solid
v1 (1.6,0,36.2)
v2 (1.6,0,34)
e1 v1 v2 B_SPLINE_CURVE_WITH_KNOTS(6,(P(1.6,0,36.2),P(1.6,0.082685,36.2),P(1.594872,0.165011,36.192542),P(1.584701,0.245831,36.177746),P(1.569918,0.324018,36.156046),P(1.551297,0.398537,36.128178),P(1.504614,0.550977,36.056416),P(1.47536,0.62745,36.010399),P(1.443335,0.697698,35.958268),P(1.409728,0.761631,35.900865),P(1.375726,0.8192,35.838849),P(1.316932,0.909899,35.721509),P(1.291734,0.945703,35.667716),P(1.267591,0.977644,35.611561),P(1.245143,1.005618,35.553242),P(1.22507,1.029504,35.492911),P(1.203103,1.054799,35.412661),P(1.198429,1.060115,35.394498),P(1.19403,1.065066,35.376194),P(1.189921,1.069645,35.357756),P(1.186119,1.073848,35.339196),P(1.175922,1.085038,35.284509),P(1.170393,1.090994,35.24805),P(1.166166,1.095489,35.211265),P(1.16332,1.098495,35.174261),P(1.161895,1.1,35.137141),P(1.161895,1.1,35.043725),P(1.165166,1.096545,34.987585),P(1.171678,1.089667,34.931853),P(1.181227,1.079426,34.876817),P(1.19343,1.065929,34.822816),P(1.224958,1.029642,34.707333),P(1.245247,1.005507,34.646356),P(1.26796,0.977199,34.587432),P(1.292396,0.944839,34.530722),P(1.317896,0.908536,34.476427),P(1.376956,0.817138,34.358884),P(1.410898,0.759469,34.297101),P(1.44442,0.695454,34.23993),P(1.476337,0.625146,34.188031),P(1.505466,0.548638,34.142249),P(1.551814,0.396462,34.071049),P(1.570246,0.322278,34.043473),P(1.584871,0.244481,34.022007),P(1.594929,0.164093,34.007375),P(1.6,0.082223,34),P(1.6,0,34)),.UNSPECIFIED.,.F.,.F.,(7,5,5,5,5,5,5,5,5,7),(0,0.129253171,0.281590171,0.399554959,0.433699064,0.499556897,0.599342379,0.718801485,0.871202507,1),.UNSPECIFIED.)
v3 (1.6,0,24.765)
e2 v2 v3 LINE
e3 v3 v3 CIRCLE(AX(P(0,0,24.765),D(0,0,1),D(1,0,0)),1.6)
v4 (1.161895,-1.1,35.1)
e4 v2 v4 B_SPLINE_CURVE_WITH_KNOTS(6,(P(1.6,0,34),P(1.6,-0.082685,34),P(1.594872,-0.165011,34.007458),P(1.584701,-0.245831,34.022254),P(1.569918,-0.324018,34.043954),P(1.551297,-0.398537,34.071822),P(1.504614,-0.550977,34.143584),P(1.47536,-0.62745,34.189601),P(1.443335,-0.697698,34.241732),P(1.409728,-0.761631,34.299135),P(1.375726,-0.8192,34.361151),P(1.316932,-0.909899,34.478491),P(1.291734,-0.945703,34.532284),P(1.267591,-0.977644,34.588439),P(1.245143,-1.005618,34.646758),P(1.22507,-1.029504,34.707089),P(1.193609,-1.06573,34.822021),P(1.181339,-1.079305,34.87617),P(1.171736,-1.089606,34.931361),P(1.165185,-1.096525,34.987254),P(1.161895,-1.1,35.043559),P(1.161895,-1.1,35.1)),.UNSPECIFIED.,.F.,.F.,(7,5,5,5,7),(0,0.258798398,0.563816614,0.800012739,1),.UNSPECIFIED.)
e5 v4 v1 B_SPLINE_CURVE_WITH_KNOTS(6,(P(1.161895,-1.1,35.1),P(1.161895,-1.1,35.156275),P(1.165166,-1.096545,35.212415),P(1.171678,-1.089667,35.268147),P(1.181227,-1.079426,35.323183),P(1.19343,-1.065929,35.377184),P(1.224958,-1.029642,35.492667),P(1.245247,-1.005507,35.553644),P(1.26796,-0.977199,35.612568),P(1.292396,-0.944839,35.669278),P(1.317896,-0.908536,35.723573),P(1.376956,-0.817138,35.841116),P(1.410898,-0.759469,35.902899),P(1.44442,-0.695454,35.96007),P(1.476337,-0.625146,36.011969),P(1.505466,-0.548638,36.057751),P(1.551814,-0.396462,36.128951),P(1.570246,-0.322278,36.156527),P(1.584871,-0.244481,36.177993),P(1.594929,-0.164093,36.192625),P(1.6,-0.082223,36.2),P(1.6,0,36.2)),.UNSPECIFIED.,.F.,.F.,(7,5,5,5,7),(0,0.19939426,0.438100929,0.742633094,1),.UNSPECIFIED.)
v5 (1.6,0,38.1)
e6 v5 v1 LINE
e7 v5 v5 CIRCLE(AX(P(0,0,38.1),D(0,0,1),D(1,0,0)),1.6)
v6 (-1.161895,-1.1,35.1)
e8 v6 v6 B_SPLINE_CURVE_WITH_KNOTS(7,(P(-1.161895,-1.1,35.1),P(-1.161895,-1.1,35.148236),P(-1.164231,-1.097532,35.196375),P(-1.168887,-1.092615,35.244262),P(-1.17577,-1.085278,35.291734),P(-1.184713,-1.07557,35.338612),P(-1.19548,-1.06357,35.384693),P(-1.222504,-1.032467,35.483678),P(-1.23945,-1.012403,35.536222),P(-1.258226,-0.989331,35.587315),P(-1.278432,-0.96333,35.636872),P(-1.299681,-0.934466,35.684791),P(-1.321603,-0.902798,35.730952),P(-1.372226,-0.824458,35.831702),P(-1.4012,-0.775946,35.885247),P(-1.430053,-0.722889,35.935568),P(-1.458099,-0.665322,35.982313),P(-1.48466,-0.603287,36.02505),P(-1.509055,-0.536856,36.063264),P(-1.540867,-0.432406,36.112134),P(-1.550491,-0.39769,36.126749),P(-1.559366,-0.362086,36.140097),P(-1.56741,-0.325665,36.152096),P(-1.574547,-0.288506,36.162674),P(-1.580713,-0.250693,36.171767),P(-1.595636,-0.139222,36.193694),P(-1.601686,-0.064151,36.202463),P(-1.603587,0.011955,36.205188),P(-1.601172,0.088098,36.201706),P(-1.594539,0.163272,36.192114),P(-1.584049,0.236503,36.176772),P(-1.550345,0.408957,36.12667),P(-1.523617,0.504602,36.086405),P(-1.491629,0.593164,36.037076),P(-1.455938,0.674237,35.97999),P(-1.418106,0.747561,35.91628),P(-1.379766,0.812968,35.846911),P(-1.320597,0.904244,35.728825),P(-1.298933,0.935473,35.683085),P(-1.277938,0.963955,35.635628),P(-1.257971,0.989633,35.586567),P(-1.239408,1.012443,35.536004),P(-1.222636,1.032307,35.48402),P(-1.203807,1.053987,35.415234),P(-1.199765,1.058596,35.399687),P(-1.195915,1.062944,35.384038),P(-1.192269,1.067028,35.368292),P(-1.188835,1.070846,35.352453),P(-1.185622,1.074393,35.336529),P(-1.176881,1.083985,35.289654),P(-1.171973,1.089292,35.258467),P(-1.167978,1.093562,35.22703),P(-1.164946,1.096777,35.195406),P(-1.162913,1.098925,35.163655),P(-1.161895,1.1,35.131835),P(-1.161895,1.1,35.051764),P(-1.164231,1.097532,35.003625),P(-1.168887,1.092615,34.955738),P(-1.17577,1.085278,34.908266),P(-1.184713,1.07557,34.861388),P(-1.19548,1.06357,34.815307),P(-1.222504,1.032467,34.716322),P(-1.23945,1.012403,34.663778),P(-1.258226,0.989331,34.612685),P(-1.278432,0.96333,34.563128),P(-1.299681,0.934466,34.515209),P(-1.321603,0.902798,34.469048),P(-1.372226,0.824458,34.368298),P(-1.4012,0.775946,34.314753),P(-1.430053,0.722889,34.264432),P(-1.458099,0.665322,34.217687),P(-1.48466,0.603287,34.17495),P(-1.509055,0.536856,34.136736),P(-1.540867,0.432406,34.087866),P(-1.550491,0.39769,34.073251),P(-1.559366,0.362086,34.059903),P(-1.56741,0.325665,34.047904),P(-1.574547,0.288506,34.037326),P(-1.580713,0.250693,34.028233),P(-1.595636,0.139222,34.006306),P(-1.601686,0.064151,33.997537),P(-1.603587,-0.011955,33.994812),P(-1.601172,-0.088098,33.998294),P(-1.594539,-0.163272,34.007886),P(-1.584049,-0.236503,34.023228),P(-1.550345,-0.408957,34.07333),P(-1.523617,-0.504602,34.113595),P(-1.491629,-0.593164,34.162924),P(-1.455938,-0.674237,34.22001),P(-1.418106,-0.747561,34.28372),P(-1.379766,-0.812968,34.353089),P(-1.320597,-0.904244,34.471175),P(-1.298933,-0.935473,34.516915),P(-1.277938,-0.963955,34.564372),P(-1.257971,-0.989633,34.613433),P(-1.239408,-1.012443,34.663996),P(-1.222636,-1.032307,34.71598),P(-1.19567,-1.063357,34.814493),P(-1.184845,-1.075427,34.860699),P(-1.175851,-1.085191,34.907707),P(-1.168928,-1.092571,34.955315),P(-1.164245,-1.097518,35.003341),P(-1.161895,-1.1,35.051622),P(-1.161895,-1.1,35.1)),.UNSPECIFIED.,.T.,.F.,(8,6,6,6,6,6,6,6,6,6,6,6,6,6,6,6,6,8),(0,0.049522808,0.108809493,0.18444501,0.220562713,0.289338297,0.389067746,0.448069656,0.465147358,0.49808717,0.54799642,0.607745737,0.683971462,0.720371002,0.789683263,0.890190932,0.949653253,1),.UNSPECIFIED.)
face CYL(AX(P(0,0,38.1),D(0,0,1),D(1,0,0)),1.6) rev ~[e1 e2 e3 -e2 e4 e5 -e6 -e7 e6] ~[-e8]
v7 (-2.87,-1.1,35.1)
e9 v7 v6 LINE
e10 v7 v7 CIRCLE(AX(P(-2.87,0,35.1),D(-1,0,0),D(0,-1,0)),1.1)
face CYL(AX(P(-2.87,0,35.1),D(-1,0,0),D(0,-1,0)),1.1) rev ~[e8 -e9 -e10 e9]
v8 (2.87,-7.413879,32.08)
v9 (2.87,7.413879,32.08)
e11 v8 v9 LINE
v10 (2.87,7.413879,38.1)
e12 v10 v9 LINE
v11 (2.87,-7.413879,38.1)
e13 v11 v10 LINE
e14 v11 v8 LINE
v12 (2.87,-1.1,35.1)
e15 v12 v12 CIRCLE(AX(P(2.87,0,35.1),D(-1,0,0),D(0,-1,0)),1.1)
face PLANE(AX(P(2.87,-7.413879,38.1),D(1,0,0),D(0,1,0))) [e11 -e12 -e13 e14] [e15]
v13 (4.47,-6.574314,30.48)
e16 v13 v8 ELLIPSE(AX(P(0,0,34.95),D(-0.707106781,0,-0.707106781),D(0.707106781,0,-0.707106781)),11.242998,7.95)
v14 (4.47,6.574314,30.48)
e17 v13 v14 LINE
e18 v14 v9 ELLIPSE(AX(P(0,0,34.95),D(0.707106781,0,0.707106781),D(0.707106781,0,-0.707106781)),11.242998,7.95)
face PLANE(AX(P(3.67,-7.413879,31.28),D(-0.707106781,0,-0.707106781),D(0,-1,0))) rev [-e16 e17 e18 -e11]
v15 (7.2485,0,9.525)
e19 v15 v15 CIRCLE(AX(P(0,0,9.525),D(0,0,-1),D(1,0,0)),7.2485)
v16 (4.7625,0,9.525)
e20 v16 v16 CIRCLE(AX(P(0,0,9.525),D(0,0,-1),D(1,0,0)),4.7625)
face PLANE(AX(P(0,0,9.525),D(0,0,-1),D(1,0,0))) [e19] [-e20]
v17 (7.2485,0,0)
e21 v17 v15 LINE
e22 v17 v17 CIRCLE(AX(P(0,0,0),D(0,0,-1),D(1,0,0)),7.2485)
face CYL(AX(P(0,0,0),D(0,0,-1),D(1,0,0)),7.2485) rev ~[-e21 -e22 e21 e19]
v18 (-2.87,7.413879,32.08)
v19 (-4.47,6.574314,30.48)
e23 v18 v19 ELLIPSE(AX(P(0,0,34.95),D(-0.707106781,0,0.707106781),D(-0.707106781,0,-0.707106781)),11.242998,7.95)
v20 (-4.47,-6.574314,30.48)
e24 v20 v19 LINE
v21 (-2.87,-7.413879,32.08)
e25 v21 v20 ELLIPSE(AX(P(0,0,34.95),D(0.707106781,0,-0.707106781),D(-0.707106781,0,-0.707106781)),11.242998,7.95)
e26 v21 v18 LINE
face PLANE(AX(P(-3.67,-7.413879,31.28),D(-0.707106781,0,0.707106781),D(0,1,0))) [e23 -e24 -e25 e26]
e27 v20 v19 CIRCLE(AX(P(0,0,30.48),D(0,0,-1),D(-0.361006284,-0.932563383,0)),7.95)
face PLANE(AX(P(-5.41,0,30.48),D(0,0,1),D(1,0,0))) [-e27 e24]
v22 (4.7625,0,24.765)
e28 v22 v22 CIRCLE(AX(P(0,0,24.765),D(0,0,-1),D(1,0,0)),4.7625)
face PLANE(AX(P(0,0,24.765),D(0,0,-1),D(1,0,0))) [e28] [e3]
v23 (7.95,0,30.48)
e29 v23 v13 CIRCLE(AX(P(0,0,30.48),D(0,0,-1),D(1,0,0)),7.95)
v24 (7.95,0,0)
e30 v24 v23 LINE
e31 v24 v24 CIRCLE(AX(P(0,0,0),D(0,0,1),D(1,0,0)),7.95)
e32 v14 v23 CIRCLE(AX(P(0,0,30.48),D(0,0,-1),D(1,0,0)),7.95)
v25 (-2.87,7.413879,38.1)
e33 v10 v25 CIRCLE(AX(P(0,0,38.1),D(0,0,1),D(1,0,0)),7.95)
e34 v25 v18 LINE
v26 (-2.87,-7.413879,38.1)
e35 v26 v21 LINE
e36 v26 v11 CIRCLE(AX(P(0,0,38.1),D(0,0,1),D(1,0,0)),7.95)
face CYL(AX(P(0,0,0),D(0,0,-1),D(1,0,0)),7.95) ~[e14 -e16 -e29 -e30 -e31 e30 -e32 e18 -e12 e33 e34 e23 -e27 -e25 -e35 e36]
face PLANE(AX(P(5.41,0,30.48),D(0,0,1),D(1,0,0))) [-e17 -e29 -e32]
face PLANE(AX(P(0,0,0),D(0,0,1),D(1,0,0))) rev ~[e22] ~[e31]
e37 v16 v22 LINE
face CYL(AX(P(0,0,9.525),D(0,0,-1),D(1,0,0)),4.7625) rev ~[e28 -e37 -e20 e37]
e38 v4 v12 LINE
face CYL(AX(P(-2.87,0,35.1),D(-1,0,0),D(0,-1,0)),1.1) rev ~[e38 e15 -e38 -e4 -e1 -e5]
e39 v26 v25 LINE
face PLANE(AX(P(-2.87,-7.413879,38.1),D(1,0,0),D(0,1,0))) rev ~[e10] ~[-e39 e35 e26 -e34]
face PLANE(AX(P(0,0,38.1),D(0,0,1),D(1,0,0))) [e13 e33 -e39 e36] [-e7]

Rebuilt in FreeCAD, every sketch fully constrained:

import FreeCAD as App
import Part
import Sketcher
from FreeCAD import Vector
Q = App.Units.Quantity


def edges_at(feature, points):
    """Names of the edges that pass closest to the given points."""
    edges = feature.Shape.Edges
    near = lambda p: min(range(len(edges)), key=lambda i: edges[i].distToShape(Part.Vertex(*p))[0])
    return sorted({f"Edge{near(p) + 1}" for p in points})


def add_polygon(sketch, points):
    """Adds a closed chain of lines whose ends are joined by coincident constraints."""
    first, n = sketch.GeometryCount, len(points)
    for a, b in zip(points, points[1:] + points[:1]):
        sketch.addGeometry(Part.LineSegment(App.Vector(*a, 0), App.Vector(*b, 0)), False)
    for i in range(n):
        sketch.addConstraint(Sketcher.Constraint("Coincident", first + i, 2, first + (i + 1) % n, 1))

doc = App.newDocument("Part")
body = doc.addObject("PartDesign::Body", "Body")

sketch1 = doc.addObject("Sketcher::SketchObject", "Sketch")
body.addObject(sketch1)
sketch1.AttachmentSupport = (doc.XY_Plane, [""])
sketch1.MapMode = "FlatFace"
sketch1.addGeometry(Part.Circle(Vector(0, 0, 0), Vector(0, 0, 1), 8), False)
sketch1.addConstraint([
    Sketcher.Constraint("Coincident", 0, 3, -1, 1),
    Sketcher.Constraint("Diameter", 0, 15.9),
])
pad1 = doc.addObject("PartDesign::Pad", "Pad")
body.addObject(pad1)
pad1.Profile = sketch1
pad1.Length = Q("1.5 in")

sketch2 = doc.addObject("Sketcher::SketchObject", "Sketch001")
body.addObject(sketch2)
sketch2.AttachmentSupport = (doc.XY_Plane, [""])
sketch2.MapMode = "FlatFace"
sketch2.addGeometry(Part.Circle(Vector(0, 0, 0), Vector(0, 0, 1), 7), False)
sketch2.addConstraint([
    Sketcher.Constraint("Coincident", 0, 3, -1, 1),
    Sketcher.Constraint("Diameter", 0, 14.497),
])
pocket1 = doc.addObject("PartDesign::Pocket", "Pocket")
body.addObject(pocket1)
pocket1.Profile = sketch2
pocket1.Length = Q("0.375 in")
pocket1.Reversed = True

sketch3 = doc.addObject("Sketcher::SketchObject", "Sketch002")
body.addObject(sketch3)
sketch3.AttachmentSupport = (doc.XY_Plane, [""])
sketch3.MapMode = "FlatFace"
sketch3.AttachmentOffset = App.Placement(Vector(0, 0, 0.375 * 25.4), App.Rotation())
sketch3.addGeometry(Part.Circle(Vector(0, 0, 0), Vector(0, 0, 1), 4.8), False)
sketch3.addConstraint([
    Sketcher.Constraint("Coincident", 0, 3, -1, 1),
    Sketcher.Constraint("Diameter", 0, Q("0.375 in")),
])
pocket2 = doc.addObject("PartDesign::Pocket", "Pocket001")
body.addObject(pocket2)
pocket2.Profile = sketch3
pocket2.Length = Q("0.6 in")
pocket2.Reversed = True

sketch4 = doc.addObject("Sketcher::SketchObject", "Sketch003")
body.addObject(sketch4)
sketch4.AttachmentSupport = (doc.XY_Plane, [""])
sketch4.MapMode = "FlatFace"
sketch4.AttachmentOffset = App.Placement(Vector(0, 0, 1.5 * 25.4), App.Rotation())
sketch4.addGeometry(Part.Circle(Vector(0, 0, 0), Vector(0, 0, 1), 1.6), False)
sketch4.addConstraint([
    Sketcher.Constraint("Coincident", 0, 3, -1, 1),
    Sketcher.Constraint("Diameter", 0, 3.2),
])
pocket3 = doc.addObject("PartDesign::Pocket", "Pocket002")
body.addObject(pocket3)
pocket3.Profile = sketch4
pocket3.Length = Q("1 in")

sketch5 = doc.addObject("Sketcher::SketchObject", "Sketch004")
body.addObject(sketch5)
sketch5.AttachmentSupport = (doc.XY_Plane, [""])
sketch5.MapMode = "FlatFace"
sketch5.AttachmentOffset = App.Placement(Vector(0, 0, 1.5 * 25.4), App.Rotation())
add_polygon(sketch5, [(-8, 7), (-8, -7), (-3, -7), (-3, 7)])
add_polygon(sketch5, [(3, 7), (3, -7), (8, -7), (8, 7)])
sketch5.addConstraint([
    Sketcher.Constraint("Vertical", 0),
    Sketcher.Constraint("Horizontal", 1),
    Sketcher.Constraint("Vertical", 2),
    Sketcher.Constraint("Horizontal", 3),
    Sketcher.Constraint("Vertical", 4),
    Sketcher.Constraint("Horizontal", 5),
    Sketcher.Constraint("Vertical", 6),
    Sketcher.Constraint("Horizontal", 7),
    Sketcher.Constraint("Symmetric", 2, 2, 4, 2, -1, 1),
    Sketcher.Constraint("Symmetric", 0, 2, 6, 2, -1, 1),
    Sketcher.Constraint("Horizontal", 1, 2, 4, 2),
    Sketcher.Constraint("DistanceX", 1, 1, 1, 2, Q("0.2 in")),
    Sketcher.Constraint("DistanceX", 0, 2, -1, 1, 7.95),
    Sketcher.Constraint("DistanceY", 0, 2, 0, 1, 14.827758),
])
pocket4 = doc.addObject("PartDesign::Pocket", "Pocket003")
body.addObject(pocket4)
pocket4.Profile = sketch5
pocket4.Length = Q("0.3 in")

sketch6 = doc.addObject("Sketcher::SketchObject", "Sketch005")
body.addObject(sketch6)
sketch6.AttachmentSupport = (doc.YZ_Plane, [""])
sketch6.MapMode = "FlatFace"
sketch6.AttachmentOffset = App.Placement(Vector(0, 0, -2.87), App.Rotation())
sketch6.addGeometry(Part.Circle(Vector(0, 35.1, 0), Vector(0, 0, 1), 1.1), False)
sketch6.addConstraint([
    Sketcher.Constraint("PointOnObject", 0, 3, -2),
    Sketcher.Constraint("Diameter", 0, 2.2),
    Sketcher.Constraint("DistanceY", -1, 1, 0, 3, 35.1),
])
pocket5 = doc.addObject("PartDesign::Pocket", "Pocket004")
body.addObject(pocket5)
pocket5.Profile = sketch6
pocket5.Length = Q("1 in")
pocket5.Reversed = True
doc.recompute()

chamfer = doc.addObject("PartDesign::Chamfer", "Chamfer")
body.addObject(chamfer)
chamfer.Base = (pocket5, edges_at(pocket5, [(-2.87, 0, 30.48), (2.87, 0, 30.48)]))
chamfer.Size = 1.6

doc.recompute()
